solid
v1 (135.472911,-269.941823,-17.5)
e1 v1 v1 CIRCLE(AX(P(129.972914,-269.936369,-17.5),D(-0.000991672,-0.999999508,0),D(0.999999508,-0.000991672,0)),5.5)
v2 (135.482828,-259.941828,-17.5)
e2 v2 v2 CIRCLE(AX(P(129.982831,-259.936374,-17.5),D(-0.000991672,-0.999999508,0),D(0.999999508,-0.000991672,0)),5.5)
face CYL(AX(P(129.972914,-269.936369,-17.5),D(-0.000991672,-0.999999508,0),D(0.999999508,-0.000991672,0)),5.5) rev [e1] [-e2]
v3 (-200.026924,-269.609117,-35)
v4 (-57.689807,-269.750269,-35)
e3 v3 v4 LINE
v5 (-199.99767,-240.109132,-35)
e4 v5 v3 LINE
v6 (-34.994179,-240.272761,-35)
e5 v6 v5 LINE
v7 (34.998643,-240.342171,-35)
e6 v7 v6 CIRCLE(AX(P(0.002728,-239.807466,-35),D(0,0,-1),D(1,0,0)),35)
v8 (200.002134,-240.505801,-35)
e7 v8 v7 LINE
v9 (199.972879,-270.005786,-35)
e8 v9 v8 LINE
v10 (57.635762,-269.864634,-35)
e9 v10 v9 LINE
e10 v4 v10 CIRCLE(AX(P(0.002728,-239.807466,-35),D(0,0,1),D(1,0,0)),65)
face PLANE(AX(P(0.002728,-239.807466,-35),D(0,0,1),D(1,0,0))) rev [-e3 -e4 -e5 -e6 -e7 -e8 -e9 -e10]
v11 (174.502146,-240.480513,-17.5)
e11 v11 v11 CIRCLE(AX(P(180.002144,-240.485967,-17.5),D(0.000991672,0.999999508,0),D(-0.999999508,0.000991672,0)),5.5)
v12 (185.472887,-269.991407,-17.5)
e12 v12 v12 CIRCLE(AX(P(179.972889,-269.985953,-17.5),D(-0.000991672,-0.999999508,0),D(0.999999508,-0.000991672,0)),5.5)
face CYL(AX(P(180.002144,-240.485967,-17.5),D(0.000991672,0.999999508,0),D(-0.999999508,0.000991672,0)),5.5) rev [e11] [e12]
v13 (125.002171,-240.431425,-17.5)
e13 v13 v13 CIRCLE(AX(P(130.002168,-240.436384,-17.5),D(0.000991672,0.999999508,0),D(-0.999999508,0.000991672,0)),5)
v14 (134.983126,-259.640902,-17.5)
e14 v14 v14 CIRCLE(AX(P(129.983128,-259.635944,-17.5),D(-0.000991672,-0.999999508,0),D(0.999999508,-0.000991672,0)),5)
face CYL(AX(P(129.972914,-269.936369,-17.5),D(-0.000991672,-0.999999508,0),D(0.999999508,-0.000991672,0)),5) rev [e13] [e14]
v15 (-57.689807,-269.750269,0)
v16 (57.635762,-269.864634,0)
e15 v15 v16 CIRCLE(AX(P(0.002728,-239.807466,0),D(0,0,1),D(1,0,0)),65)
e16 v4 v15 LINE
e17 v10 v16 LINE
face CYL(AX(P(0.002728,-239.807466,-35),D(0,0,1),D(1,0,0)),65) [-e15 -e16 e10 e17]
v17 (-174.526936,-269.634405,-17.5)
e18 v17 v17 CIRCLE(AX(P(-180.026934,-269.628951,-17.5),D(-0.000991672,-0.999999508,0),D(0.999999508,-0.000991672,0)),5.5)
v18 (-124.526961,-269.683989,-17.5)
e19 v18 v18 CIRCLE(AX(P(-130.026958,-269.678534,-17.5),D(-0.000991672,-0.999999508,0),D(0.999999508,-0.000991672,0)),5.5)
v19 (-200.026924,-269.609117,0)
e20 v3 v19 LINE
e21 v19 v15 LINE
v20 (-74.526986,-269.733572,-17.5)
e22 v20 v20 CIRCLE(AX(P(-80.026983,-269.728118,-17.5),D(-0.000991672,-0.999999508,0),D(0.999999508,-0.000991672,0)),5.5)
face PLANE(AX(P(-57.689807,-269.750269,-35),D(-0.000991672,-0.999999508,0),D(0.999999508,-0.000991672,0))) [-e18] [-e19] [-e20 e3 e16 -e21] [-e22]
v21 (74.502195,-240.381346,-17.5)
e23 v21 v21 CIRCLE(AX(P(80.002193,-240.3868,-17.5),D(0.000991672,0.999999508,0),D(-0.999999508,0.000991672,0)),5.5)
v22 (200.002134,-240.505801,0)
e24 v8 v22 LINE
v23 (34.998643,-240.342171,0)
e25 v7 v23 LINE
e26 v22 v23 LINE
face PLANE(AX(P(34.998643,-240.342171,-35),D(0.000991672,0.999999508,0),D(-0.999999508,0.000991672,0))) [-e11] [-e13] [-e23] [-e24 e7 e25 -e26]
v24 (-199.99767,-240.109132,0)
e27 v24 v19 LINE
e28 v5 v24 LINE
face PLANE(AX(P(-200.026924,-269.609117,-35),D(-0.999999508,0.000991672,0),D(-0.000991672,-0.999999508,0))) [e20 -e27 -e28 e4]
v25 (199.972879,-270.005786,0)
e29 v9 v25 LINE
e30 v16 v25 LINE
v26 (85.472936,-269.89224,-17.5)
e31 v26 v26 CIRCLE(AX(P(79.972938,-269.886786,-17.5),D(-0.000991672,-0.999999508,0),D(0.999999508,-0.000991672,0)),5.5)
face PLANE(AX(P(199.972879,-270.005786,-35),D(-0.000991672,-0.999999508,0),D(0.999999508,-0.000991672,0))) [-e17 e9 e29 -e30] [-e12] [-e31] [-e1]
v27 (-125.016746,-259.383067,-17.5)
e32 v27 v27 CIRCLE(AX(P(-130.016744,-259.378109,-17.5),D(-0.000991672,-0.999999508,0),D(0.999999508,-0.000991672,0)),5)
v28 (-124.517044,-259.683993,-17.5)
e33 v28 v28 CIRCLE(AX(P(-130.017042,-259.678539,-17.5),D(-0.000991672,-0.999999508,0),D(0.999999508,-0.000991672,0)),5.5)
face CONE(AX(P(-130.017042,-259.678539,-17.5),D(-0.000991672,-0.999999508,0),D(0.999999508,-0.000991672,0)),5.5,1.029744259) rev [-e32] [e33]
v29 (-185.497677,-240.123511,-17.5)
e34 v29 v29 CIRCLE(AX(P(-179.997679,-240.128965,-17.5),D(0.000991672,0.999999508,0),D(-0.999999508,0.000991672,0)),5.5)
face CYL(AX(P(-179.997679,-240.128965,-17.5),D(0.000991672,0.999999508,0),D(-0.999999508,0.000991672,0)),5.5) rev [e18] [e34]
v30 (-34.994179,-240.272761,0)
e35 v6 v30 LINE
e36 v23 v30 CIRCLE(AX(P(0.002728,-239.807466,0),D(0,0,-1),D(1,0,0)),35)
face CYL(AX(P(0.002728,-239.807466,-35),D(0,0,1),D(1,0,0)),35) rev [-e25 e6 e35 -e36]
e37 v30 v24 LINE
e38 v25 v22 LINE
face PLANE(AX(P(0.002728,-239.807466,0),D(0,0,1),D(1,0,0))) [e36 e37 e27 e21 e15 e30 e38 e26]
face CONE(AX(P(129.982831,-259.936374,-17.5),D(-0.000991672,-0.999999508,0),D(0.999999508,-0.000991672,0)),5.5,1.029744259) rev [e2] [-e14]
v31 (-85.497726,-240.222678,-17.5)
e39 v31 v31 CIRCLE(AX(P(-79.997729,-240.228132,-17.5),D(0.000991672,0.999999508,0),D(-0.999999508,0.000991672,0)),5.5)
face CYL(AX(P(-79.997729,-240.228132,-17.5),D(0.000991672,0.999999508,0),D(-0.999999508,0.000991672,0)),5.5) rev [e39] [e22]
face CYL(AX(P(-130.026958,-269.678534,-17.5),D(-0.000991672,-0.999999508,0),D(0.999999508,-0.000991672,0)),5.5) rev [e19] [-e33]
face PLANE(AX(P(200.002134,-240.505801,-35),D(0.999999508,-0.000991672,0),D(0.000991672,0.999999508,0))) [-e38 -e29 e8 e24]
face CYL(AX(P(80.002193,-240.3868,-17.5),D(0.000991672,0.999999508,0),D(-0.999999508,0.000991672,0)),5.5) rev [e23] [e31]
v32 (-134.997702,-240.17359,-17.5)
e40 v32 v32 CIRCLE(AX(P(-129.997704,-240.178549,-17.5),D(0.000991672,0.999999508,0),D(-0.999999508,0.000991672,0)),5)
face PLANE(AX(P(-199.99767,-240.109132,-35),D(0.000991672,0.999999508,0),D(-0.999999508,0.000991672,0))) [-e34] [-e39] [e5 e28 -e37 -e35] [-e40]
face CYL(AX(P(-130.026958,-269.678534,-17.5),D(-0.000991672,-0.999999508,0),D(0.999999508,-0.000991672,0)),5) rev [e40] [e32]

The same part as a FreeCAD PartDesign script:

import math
import FreeCAD as App
import Part
import Sketcher

doc = App.newDocument("Part")
body = doc.addObject("PartDesign::Body", "Body")

# Sketch on XY plane
sketch1 = doc.addObject("Sketcher::SketchObject", "Sketch")
body.addObject(sketch1)
sketch1.AttachmentSupport = (doc.XY_Plane, [""])
sketch1.MapMode = "FlatFace"
sketch1.addGeometry(Part.LineSegment(App.Vector(-34.994179, -240.272761, 0), App.Vector(-199.99767, -240.109132, 0)), False)
sketch1.addGeometry(Part.LineSegment(App.Vector(-199.99767, -240.109132, 0), App.Vector(-200.026924, -269.609117, 0)), False)
sketch1.addGeometry(Part.LineSegment(App.Vector(-200.026924, -269.609117, 0), App.Vector(-57.689807, -269.750269, 0)), False)
sketch1.addGeometry(Part.ArcOfCircle(Part.Circle(App.Vector(0.002728, -239.807466, 0), App.Vector(0, 0, 1), 65), math.radians(-152.570392), math.radians(-27.543245)), False)
sketch1.addGeometry(Part.LineSegment(App.Vector(57.635762, -269.864634, 0), App.Vector(199.972879, -270.005786, 0)), False)
sketch1.addGeometry(Part.LineSegment(App.Vector(199.972879, -270.005786, 0), App.Vector(200.002134, -240.505801, 0)), False)
sketch1.addGeometry(Part.LineSegment(App.Vector(200.002134, -240.505801, 0), App.Vector(34.998643, -240.342171, 0)), False)
sketch1.addGeometry(Part.ArcOfCircle(Part.Circle(App.Vector(0.002728, -239.807466, 0), App.Vector(0, 0, 1), 35), math.radians(-179.23828), math.radians(-0.875358)), False)
sketch1.addConstraint(Sketcher.Constraint("Coincident", 0, 2, 1, 1))
sketch1.addConstraint(Sketcher.Constraint("Coincident", 1, 2, 2, 1))
sketch1.addConstraint(Sketcher.Constraint("Coincident", 2, 2, 3, 1))
sketch1.addConstraint(Sketcher.Constraint("Coincident", 3, 2, 4, 1))
sketch1.addConstraint(Sketcher.Constraint("Coincident", 4, 2, 5, 1))
sketch1.addConstraint(Sketcher.Constraint("Coincident", 5, 2, 6, 1))
sketch1.addConstraint(Sketcher.Constraint("Coincident", 6, 2, 7, 2))
sketch1.addConstraint(Sketcher.Constraint("Coincident", 7, 1, 0, 1))
sketch1.addConstraint(Sketcher.Constraint("Coincident", 7, 3, 3, 3))
sketch1.addConstraint(Sketcher.Constraint("Radius", 3, 65.0))
sketch1.addConstraint(Sketcher.Constraint("Radius", 7, 35.0))
sketch1.addConstraint(Sketcher.Constraint("Distance", 1, 29.5))
sketch1.addConstraint(Sketcher.Constraint("Distance", 5, 29.5))
sketch1.addConstraint(Sketcher.Constraint("DistanceY", 5, 2, -1, 1, 240.505801))
sketch1.addConstraint(Sketcher.Constraint("Distance", 0, 165.003572))
sketch1.addConstraint(Sketcher.Constraint("Distance", 6, 165.003572))
sketch1.addConstraint(Sketcher.Constraint("DistanceX", 0, 2, -1, 1, 199.99767))
sketch1.addConstraint(Sketcher.Constraint("DistanceY", 0, 2, -1, 1, 240.109132))
sketch1.addConstraint(Sketcher.Constraint("DistanceY", 2, 2, -1, 1, 269.750269))
sketch1.addConstraint(Sketcher.Constraint("DistanceX", -1, 1, 4, 2, 199.972879))
sketch1.addConstraint(Sketcher.Constraint("DistanceY", 6, 2, -1, 1, 240.342171))
sketch1.addConstraint(Sketcher.Constraint("DistanceY", 7, 1, -1, 1, 240.272761))
sketch1.addConstraint(Sketcher.Constraint("DistanceX", 1, 2, 7, 3, 200.029652))
sketch1.addConstraint(Sketcher.Constraint("DistanceY", 1, 2, 7, 3, 29.801651))
sketch1.addConstraint(Sketcher.Constraint("DistanceX", 2, 2, 3, 2, 115.325569))
pad1 = doc.addObject("PartDesign::Pad", "Pad")
body.addObject(pad1)
pad1.Profile = sketch1
pad1.Length = 35
pad1.Reversed = True

# Sketch on an angled plane
sketch2 = doc.addObject("Sketcher::SketchObject", "Sketch001")
body.addObject(sketch2)
sketch2.Placement = App.Placement(App.Vector(-0.238306, -240.307228, 0), App.Rotation(App.Vector(0.999999508, -0.000991672, 0), App.Vector(0, 0, -0.999999999), App.Vector(0.000991672, 0.999999508, 0), "ZXY"))
sketch2.addGeometry(Part.Circle(App.Vector(-179.759462, 17.5, 0), App.Vector(0, 0, 1), 5.5), False)
sketch2.addGeometry(Part.Circle(App.Vector(-79.759462, 17.5, 0), App.Vector(0, 0, 1), 5.5), False)
sketch2.addGeometry(Part.Circle(App.Vector(80.240538, 17.5, 0), App.Vector(0, 0, 1), 5.5), False)
sketch2.addGeometry(Part.Circle(App.Vector(180.240538, 17.5, 0), App.Vector(0, 0, 1), 5.5), False)
sketch2.addConstraint(Sketcher.Constraint("Equal", 0, 1))
sketch2.addConstraint(Sketcher.Constraint("Equal", 1, 2))
sketch2.addConstraint(Sketcher.Constraint("Equal", 2, 3))
sketch2.addConstraint(Sketcher.Constraint("Horizontal", 0, 3, 1, 3))
sketch2.addConstraint(Sketcher.Constraint("Horizontal", 1, 3, 2, 3))
sketch2.addConstraint(Sketcher.Constraint("Horizontal", 2, 3, 3, 3))
sketch2.addConstraint(Sketcher.Constraint("Diameter", 0, 11.0))
sketch2.addConstraint(Sketcher.Constraint("DistanceX", 0, 3, 1, 3, 100.0))
sketch2.addConstraint(Sketcher.Constraint("DistanceX", 1, 3, 2, 3, 160.0))
sketch2.addConstraint(Sketcher.Constraint("DistanceX", 2, 3, 3, 3, 100.0))
sketch2.addConstraint(Sketcher.Constraint("DistanceY", -1, 1, 0, 3, 17.5))
sketch2.addConstraint(Sketcher.Constraint("DistanceX", 0, 3, -1, 1, 179.759462))
doc.recompute()
hole = doc.addObject("PartDesign::Hole", "Hole")
body.addObject(hole)
hole.Profile = sketch2
hole.ThreadType = "None"
hole.Diameter = 11
hole.DepthType = "ThroughAll"

# Sketch on an angled plane
sketch3 = doc.addObject("Sketcher::SketchObject", "Sketch002")
body.addObject(sketch3)
sketch3.Placement = App.Placement(App.Vector(-0.26756, -269.807213, 0), App.Rotation(App.Vector(-0.999999508, 0.000991672, 0), App.Vector(0, 0, -0.999999999), App.Vector(-0.000991672, -0.999999508, 0), "ZXY"))
sketch3.addGeometry(Part.Circle(App.Vector(129.759462, 17.5, 0), App.Vector(0, 0, 1), 5), False)
sketch3.addGeometry(Part.Circle(App.Vector(-130.240538, 17.5, 0), App.Vector(0, 0, 1), 5), False)
sketch3.addGeometry(Part.Circle(App.Vector(-221.181262, -155.41838, 0), App.Vector(0, 0, 1), 5), False)
sketch3.addConstraint(Sketcher.Constraint("Equal", 0, 1))
sketch3.addConstraint(Sketcher.Constraint("Equal", 1, 2))
sketch3.addConstraint(Sketcher.Constraint("Horizontal", 0, 3, 1, 3))
sketch3.addConstraint(Sketcher.Constraint("Diameter", 0, 10.0))
sketch3.addConstraint(Sketcher.Constraint("DistanceX", 1, 3, 0, 3, 260.0))
sketch3.addConstraint(Sketcher.Constraint("DistanceY", -1, 1, 0, 3, 17.5))
sketch3.addConstraint(Sketcher.Constraint("DistanceX", -1, 1, 0, 3, 129.759462))
sketch3.addConstraint(Sketcher.Constraint("DistanceY", 2, 3, -1, 1, 155.41838))
sketch3.addConstraint(Sketcher.Constraint("DistanceX", 2, 3, -1, 1, 221.181262))
doc.recompute()
hole2 = doc.addObject("PartDesign::Hole", "Hole001")
body.addObject(hole2)
hole2.Profile = sketch3
hole2.ThreadType = "None"
hole2.Diameter = 10
hole2.DepthType = "ThroughAll"

# Sketch on an angled plane
sketch4 = doc.addObject("Sketcher::SketchObject", "Sketch003")
body.addObject(sketch4)
sketch4.Placement = App.Placement(App.Vector(-0.26756, -269.807213, 0), App.Rotation(App.Vector(-0.999999508, 0.000991672, 0), App.Vector(0, 0, -0.999999999), App.Vector(-0.000991672, -0.999999508, 0), "ZXY"))
sketch4.addGeometry(Part.Circle(App.Vector(129.759462, 17.5, 0), App.Vector(0, 0, 1), 5.5), False)
sketch4.addGeometry(Part.Circle(App.Vector(-130.240538, 17.5, 0), App.Vector(0, 0, 1), 5.5), False)
sketch4.addConstraint(Sketcher.Constraint("Equal", 0, 1))
sketch4.addConstraint(Sketcher.Constraint("Horizontal", 0, 3, 1, 3))
sketch4.addConstraint(Sketcher.Constraint("Diameter", 0, 11.0))
sketch4.addConstraint(Sketcher.Constraint("DistanceX", 1, 3, 0, 3, 260.0))
sketch4.addConstraint(Sketcher.Constraint("DistanceY", -1, 1, 0, 3, 17.5))
sketch4.addConstraint(Sketcher.Constraint("DistanceX", -1, 1, 0, 3, 129.759462))
doc.recompute()
hole3 = doc.addObject("PartDesign::Hole", "Hole002")
body.addObject(hole3)
hole3.Profile = sketch4
hole3.ThreadType = "None"
hole3.Diameter = 11
hole3.DepthType = "Dimension"
hole3.Depth = 10
hole3.DrillPoint = "Angled"
hole3.DrillPointAngle = 118

doc.recompute()
